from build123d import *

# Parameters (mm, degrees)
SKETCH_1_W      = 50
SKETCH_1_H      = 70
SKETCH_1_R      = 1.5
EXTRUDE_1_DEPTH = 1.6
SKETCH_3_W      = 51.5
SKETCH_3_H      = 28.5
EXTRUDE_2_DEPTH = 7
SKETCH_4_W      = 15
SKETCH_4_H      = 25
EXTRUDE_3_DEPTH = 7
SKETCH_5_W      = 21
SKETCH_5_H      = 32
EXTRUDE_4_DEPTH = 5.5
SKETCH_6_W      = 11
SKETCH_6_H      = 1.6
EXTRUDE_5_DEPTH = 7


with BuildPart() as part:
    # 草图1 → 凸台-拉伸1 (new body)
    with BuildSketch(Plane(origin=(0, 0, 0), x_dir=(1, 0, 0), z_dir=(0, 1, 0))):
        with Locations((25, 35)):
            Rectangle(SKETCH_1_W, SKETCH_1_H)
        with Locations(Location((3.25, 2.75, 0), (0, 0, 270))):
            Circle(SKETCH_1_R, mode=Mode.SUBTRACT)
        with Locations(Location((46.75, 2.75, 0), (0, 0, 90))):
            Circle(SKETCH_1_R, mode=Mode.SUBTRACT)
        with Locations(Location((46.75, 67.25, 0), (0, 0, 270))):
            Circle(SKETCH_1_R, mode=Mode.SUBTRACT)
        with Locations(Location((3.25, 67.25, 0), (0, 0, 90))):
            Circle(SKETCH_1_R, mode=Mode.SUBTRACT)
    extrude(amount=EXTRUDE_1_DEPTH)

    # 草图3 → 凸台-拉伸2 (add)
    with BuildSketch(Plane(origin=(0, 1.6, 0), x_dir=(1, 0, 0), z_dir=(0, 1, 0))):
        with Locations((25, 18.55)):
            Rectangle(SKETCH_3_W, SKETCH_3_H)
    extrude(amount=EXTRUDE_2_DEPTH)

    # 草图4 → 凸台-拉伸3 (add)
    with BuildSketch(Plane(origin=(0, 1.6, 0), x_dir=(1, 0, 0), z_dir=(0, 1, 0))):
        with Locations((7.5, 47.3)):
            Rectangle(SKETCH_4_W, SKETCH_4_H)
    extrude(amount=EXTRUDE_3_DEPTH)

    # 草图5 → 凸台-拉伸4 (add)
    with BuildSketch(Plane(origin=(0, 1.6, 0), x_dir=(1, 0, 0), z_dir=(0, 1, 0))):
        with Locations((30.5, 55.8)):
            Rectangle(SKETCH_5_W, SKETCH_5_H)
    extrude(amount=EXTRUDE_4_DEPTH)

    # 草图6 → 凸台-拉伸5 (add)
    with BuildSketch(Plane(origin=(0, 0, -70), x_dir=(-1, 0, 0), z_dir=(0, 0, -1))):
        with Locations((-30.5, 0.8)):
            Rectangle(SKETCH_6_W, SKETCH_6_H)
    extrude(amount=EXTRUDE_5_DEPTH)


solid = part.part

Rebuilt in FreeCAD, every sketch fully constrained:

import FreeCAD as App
import Part
import Sketcher

V = App.Vector
Q = App.Units.Quantity

doc = App.newDocument("Part")
body = doc.addObject("PartDesign::Body", "Body")

sketch1 = body.newObject("Sketcher::SketchObject", "Sketch")
sketch1.AttachmentSupport = (doc.getObject("XZ_Plane"), [""])
sketch1.MapMode = "FlatFace"
sketch1.addGeometry([
    Part.LineSegment(V(0, -70, 0), V(0, 0, 0)),
    Part.LineSegment(V(0, 0, 0), V(50, 0, 0)),
    Part.LineSegment(V(50, 0, 0), V(50, -70, 0)),
    Part.LineSegment(V(50, -70, 0), V(0, -70, 0)),
    Part.Circle(V(3.2, -2.8, 0), V(0, 0, 1), 1.5),
    Part.Circle(V(46.8, -2.8, 0), V(0, 0, 1), 1.5),
    Part.Circle(V(3.2, -67.2, 0), V(0, 0, 1), 1.5),
    Part.Circle(V(46.8, -67.2, 0), V(0, 0, 1), 1.5),
], False)
sketch1.addConstraint([
    Sketcher.Constraint("Coincident", 0, 2, 1, 1),
    Sketcher.Constraint("Coincident", 1, 2, 2, 1),
    Sketcher.Constraint("Coincident", 2, 2, 3, 1),
    Sketcher.Constraint("Coincident", 3, 2, 0, 1),
    Sketcher.Constraint("Vertical", 0),
    Sketcher.Constraint("Horizontal", 1),
    Sketcher.Constraint("Vertical", 2),
    Sketcher.Constraint("Horizontal", 3),
    Sketcher.Constraint("Coincident", 0, 2, -1, 1),
    Sketcher.Constraint("Equal", 4, 5),
    Sketcher.Constraint("Equal", 5, 6),
    Sketcher.Constraint("Equal", 6, 7),
    Sketcher.Constraint("Horizontal", 4, 3, 5, 3),
    Sketcher.Constraint("Horizontal", 6, 3, 7, 3),
    Sketcher.Constraint("Vertical", 4, 3, 6, 3),
    Sketcher.Constraint("Vertical", 5, 3, 7, 3),
    Sketcher.Constraint("Diameter", 4, Q("3 mm")),
    Sketcher.Constraint("DistanceX", 1, 1, 1, 2, Q("50 mm")),
    Sketcher.Constraint("DistanceY", 0, 1, 0, 2, Q("70 mm")),
    Sketcher.Constraint("DistanceX", 4, 3, 5, 3, Q("43.5 mm")),
    Sketcher.Constraint("DistanceY", 6, 3, 4, 3, Q("64.5 mm")),
    Sketcher.Constraint("DistanceX", -1, 1, 4, 3, Q("3.25 mm")),
    Sketcher.Constraint("DistanceY", 4, 3, -1, 1, Q("2.75 mm")),
])
pad1 = body.newObject("PartDesign::Pad", "Pad")
pad1.Profile = sketch1
pad1.Length = 1.6
pad1.Reversed = True

sketch2 = body.newObject("Sketcher::SketchObject", "Sketch001")
sketch2.AttachmentSupport = (doc.getObject("XZ_Plane"), [""])
sketch2.MapMode = "FlatFace"
sketch2.AttachmentOffset = App.Placement(V(0, 0, -1.6), App.Rotation())
sketch2.addGeometry([
    Part.LineSegment(V(-1, -33, 0), V(-1, -4, 0)),
    Part.LineSegment(V(-1, -4, 0), V(51, -4, 0)),
    Part.LineSegment(V(51, -4, 0), V(51, -33, 0)),
    Part.LineSegment(V(51, -33, 0), V(-1, -33, 0)),
], False)
sketch2.addConstraint([
    Sketcher.Constraint("Coincident", 0, 2, 1, 1),
    Sketcher.Constraint("Coincident", 1, 2, 2, 1),
    Sketcher.Constraint("Coincident", 2, 2, 3, 1),
    Sketcher.Constraint("Coincident", 3, 2, 0, 1),
    Sketcher.Constraint("Vertical", 0),
    Sketcher.Constraint("Horizontal", 1),
    Sketcher.Constraint("Vertical", 2),
    Sketcher.Constraint("Horizontal", 3),
    Sketcher.Constraint("DistanceX", 1, 1, 1, 2, Q("51.5 mm")),
    Sketcher.Constraint("DistanceY", 0, 1, 0, 2, Q("28.5 mm")),
    Sketcher.Constraint("DistanceY", 0, 2, -1, 1, Q("4.3 mm")),
    Sketcher.Constraint("DistanceX", 0, 2, -1, 1, Q("0.75 mm")),
])
pad2 = body.newObject("PartDesign::Pad", "Pad001")
pad2.Profile = sketch2
pad2.Length = 7
pad2.Reversed = True

sketch3 = body.newObject("Sketcher::SketchObject", "Sketch002")
sketch3.AttachmentSupport = (doc.getObject("XZ_Plane"), [""])
sketch3.MapMode = "FlatFace"
sketch3.AttachmentOffset = App.Placement(V(0, 0, -1.6), App.Rotation())
sketch3.addGeometry([
    Part.LineSegment(V(0, -60, 0), V(0, -35, 0)),
    Part.LineSegment(V(0, -35, 0), V(15, -35, 0)),
    Part.LineSegment(V(15, -35, 0), V(15, -60, 0)),
    Part.LineSegment(V(15, -60, 0), V(0, -60, 0)),
], False)
sketch3.addConstraint([
    Sketcher.Constraint("Coincident", 0, 2, 1, 1),
    Sketcher.Constraint("Coincident", 1, 2, 2, 1),
    Sketcher.Constraint("Coincident", 2, 2, 3, 1),
    Sketcher.Constraint("Coincident", 3, 2, 0, 1),
    Sketcher.Constraint("Vertical", 0),
    Sketcher.Constraint("Horizontal", 1),
    Sketcher.Constraint("Vertical", 2),
    Sketcher.Constraint("Horizontal", 3),
    Sketcher.Constraint("PointOnObject", 0, 2, -2),
    Sketcher.Constraint("DistanceX", 1, 1, 1, 2, Q("15 mm")),
    Sketcher.Constraint("DistanceY", 0, 1, 0, 2, Q("25 mm")),
    Sketcher.Constraint("DistanceY", 0, 2, -1, 1, Q("34.8 mm")),
])
pad3 = body.newObject("PartDesign::Pad", "Pad002")
pad3.Profile = sketch3
pad3.Length = 7
pad3.Reversed = True

sketch4 = body.newObject("Sketcher::SketchObject", "Sketch003")
sketch4.AttachmentSupport = (doc.getObject("XZ_Plane"), [""])
sketch4.MapMode = "FlatFace"
sketch4.AttachmentOffset = App.Placement(V(0, 0, -1.6), App.Rotation())
sketch4.addGeometry([
    Part.LineSegment(V(20, -72, 0), V(20, -40, 0)),
    Part.LineSegment(V(20, -40, 0), V(41, -40, 0)),
    Part.LineSegment(V(41, -40, 0), V(41, -72, 0)),
    Part.LineSegment(V(41, -72, 0), V(20, -72, 0)),
], False)
sketch4.addConstraint([
    Sketcher.Constraint("Coincident", 0, 2, 1, 1),
    Sketcher.Constraint("Coincident", 1, 2, 2, 1),
    Sketcher.Constraint("Coincident", 2, 2, 3, 1),
    Sketcher.Constraint("Coincident", 3, 2, 0, 1),
    Sketcher.Constraint("Vertical", 0),
    Sketcher.Constraint("Horizontal", 1),
    Sketcher.Constraint("Vertical", 2),
    Sketcher.Constraint("Horizontal", 3),
    Sketcher.Constraint("DistanceX", 1, 1, 1, 2, Q("21 mm")),
    Sketcher.Constraint("DistanceY", 0, 1, 0, 2, Q("32 mm")),
    Sketcher.Constraint("DistanceX", -1, 1, 0, 2, Q("20 mm")),
    Sketcher.Constraint("DistanceY", 0, 2, -1, 1, Q("39.8 mm")),
])
pad4 = body.newObject("PartDesign::Pad", "Pad003")
pad4.Profile = sketch4
pad4.Length = 5.5
pad4.Reversed = True

sketch5 = body.newObject("Sketcher::SketchObject", "Sketch004")
sketch5.AttachmentSupport = (doc.getObject("XY_Plane"), [""])
sketch5.MapMode = "FlatFace"
sketch5.AttachmentOffset = App.Placement(V(0, 0, -70), App.Rotation())
sketch5.addGeometry([
    Part.LineSegment(V(36, 1.6, 0), V(36, 0, 0)),
    Part.LineSegment(V(36, 0, 0), V(25, 0, 0)),
    Part.LineSegment(V(25, 0, 0), V(25, 1.6, 0)),
    Part.LineSegment(V(25, 1.6, 0), V(36, 1.6, 0)),
], False)
sketch5.addConstraint([
    Sketcher.Constraint("Coincident", 0, 2, 1, 1),
    Sketcher.Constraint("Coincident", 1, 2, 2, 1),
    Sketcher.Constraint("Coincident", 2, 2, 3, 1),
    Sketcher.Constraint("Coincident", 3, 2, 0, 1),
    Sketcher.Constraint("Vertical", 0),
    Sketcher.Constraint("Horizontal", 1),
    Sketcher.Constraint("Vertical", 2),
    Sketcher.Constraint("Horizontal", 3),
    Sketcher.Constraint("PointOnObject", 0, 2, -1),
    Sketcher.Constraint("DistanceX", 1, 2, 1, 1, Q("11 mm")),
    Sketcher.Constraint("DistanceY", 0, 2, 0, 1, Q("1.6 mm")),
    Sketcher.Constraint("DistanceX", -1, 1, 0, 2, Q("36 mm")),
])
pad5 = body.newObject("PartDesign::Pad", "Pad004")
pad5.Profile = sketch5
pad5.Length = 7
pad5.Reversed = True

doc.recompute()
